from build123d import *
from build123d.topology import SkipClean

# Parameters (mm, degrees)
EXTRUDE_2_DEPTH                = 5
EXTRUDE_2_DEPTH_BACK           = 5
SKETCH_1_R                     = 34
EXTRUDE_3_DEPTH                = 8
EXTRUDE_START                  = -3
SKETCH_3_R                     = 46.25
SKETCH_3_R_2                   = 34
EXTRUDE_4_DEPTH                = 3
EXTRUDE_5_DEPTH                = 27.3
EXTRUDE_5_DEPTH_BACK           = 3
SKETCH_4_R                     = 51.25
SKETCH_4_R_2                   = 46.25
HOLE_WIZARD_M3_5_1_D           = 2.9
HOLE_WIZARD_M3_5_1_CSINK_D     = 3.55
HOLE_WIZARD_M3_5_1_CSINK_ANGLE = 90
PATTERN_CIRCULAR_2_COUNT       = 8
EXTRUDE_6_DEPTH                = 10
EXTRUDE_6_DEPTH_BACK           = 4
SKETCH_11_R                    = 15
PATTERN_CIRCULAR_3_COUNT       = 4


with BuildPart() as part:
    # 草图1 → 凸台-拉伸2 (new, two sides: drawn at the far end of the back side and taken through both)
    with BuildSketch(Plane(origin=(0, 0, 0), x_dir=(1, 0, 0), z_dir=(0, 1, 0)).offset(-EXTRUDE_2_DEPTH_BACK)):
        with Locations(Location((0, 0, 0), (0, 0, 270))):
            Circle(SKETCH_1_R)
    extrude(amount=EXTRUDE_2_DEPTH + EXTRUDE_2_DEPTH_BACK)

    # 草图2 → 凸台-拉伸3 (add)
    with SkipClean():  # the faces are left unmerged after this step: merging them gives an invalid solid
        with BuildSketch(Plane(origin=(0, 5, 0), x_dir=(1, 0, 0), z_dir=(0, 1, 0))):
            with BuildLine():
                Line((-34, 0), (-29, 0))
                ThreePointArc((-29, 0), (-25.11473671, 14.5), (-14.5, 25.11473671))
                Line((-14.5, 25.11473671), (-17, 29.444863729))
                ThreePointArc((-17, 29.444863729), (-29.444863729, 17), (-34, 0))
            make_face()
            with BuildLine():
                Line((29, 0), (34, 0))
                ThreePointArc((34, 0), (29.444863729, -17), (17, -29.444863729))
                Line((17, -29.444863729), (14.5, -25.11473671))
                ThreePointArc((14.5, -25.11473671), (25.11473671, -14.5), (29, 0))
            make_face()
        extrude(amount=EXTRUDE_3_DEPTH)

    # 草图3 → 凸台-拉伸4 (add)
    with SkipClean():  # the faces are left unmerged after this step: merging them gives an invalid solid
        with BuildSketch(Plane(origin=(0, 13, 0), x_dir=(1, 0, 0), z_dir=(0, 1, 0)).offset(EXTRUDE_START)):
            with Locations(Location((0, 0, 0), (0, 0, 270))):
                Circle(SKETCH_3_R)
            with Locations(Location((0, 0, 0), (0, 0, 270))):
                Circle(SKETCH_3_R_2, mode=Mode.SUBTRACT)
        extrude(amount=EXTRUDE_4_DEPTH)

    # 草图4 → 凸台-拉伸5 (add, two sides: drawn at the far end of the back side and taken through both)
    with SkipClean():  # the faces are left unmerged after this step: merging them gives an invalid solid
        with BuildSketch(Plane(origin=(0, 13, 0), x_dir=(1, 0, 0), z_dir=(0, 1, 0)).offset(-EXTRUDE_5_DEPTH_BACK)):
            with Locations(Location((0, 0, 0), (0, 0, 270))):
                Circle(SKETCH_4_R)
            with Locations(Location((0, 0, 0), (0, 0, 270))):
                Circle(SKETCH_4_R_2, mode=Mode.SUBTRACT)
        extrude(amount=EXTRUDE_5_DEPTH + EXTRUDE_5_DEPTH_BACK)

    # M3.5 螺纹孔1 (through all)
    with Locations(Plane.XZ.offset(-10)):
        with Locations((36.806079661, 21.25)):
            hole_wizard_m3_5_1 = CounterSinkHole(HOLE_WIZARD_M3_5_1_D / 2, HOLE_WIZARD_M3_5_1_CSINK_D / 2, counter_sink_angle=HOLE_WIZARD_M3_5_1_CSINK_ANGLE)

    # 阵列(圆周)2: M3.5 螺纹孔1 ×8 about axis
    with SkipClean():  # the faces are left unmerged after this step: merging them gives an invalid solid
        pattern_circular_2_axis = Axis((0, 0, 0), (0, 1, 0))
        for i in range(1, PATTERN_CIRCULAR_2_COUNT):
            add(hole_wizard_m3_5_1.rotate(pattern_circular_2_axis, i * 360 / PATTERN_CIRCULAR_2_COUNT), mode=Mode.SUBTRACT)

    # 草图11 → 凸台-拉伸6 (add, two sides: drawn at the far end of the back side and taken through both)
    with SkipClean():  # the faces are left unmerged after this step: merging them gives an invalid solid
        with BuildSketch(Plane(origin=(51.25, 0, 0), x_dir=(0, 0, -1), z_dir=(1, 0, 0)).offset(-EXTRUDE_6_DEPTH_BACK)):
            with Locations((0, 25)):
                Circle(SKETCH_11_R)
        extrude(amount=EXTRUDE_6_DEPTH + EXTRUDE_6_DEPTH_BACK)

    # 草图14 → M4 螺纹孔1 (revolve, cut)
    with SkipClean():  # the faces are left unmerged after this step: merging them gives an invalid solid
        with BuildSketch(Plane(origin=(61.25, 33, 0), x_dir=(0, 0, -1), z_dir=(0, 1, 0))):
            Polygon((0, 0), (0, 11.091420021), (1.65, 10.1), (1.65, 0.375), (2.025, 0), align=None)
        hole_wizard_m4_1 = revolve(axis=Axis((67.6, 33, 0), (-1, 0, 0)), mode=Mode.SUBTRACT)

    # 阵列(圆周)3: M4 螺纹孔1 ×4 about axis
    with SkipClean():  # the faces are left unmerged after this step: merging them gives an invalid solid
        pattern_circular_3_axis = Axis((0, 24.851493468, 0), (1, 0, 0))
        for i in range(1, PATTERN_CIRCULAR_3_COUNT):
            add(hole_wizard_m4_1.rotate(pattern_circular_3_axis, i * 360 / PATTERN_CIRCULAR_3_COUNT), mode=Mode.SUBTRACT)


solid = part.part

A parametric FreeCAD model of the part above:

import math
import FreeCAD as App
import Part
import Sketcher
Q = App.Units.Quantity


def add_polygon(sketch, points):
    """Adds a closed chain of lines whose ends are joined by coincident constraints."""
    first, n = sketch.GeometryCount, len(points)
    for a, b in zip(points, points[1:] + points[:1]):
        sketch.addGeometry(Part.LineSegment(App.Vector(*a, 0), App.Vector(*b, 0)), False)
    for i in range(n):
        sketch.addConstraint(Sketcher.Constraint("Coincident", first + i, 2, first + (i + 1) % n, 1))

doc = App.newDocument("Part")
body = doc.addObject("PartDesign::Body", "Body")

# Sketch on XZ plane
sketch1 = body.newObject("Sketcher::SketchObject", "Sketch")
sketch1.AttachmentSupport = (doc.getObject("XZ_Plane"), [""])
sketch1.MapMode = "FlatFace"
sketch1.addGeometry(Part.Circle(App.Vector(0, 0, 0), App.Vector(0, 0, 1), 34), False)
sketch1.addConstraint([
    Sketcher.Constraint("Coincident", 0, 3, -1, 1),
    Sketcher.Constraint("Diameter", 0, Q("68 mm")),
])
pad1 = body.newObject("PartDesign::Pad", "Pad")
pad1.Profile = sketch1
pad1.Type = "TwoLengths"
pad1.Length = 5
pad1.Length2 = 5
pad1.Reversed = True

# Sketch on XZ plane
sketch2 = body.newObject("Sketcher::SketchObject", "Sketch001")
sketch2.AttachmentSupport = (doc.getObject("XZ_Plane"), [""])
sketch2.MapMode = "FlatFace"
sketch2.AttachmentOffset = App.Placement(App.Vector(0, 0, -5), App.Rotation())
sketch2.addGeometry([
    Part.LineSegment(App.Vector(-34, 0, 0), App.Vector(-29, 0, 0)),  # 0
    Part.ArcOfCircle(Part.Circle(App.Vector(0, 0, 0), App.Vector(0, 0, 1), 29), math.radians(180), math.radians(240)),  # 1
    Part.LineSegment(App.Vector(-14, -25, 0), App.Vector(-17, -29, 0)),  # 2
    Part.ArcOfCircle(Part.Circle(App.Vector(0, 0, 0), App.Vector(0, 0, 1), 34), math.radians(180), math.radians(240)),  # 3
    Part.LineSegment(App.Vector(34, 0, 0), App.Vector(29, 0, 0)),  # 4
    Part.ArcOfCircle(Part.Circle(App.Vector(0, 0, 0), App.Vector(0, 0, 1), 29), math.radians(0), math.radians(60)),  # 5
    Part.LineSegment(App.Vector(14, 25, 0), App.Vector(17, 29, 0)),  # 6
    Part.ArcOfCircle(Part.Circle(App.Vector(0, 0, 0), App.Vector(0, 0, 1), 34), math.radians(0), math.radians(60)),  # 7
], False)
sketch2.addConstraint([
    Sketcher.Constraint("Coincident", 0, 2, 1, 1),
    Sketcher.Constraint("Coincident", 1, 2, 2, 1),
    Sketcher.Constraint("Coincident", 2, 2, 3, 2),
    Sketcher.Constraint("Coincident", 3, 1, 0, 1),
    Sketcher.Constraint("Coincident", 4, 2, 5, 1),
    Sketcher.Constraint("Coincident", 5, 2, 6, 1),
    Sketcher.Constraint("Coincident", 6, 2, 7, 2),
    Sketcher.Constraint("Coincident", 7, 1, 4, 1),
    Sketcher.Constraint("Horizontal", 0),
    Sketcher.Constraint("Horizontal", 4),
    Sketcher.Constraint("Coincident", 1, 3, -1, 1),
    Sketcher.Constraint("Coincident", 3, 3, -1, 1),
    Sketcher.Constraint("Coincident", 5, 3, -1, 1),
    Sketcher.Constraint("Coincident", 7, 3, -1, 1),
    Sketcher.Constraint("Equal", 1, 5),
    Sketcher.Constraint("Equal", 3, 7),
    Sketcher.Constraint("PointOnObject", 0, 2, -1),
    Sketcher.Constraint("PointOnObject", 4, 2, -1),
    Sketcher.Constraint("Parallel", 2, 6),
    Sketcher.Constraint("Radius", 1, Q("29 mm")),
    Sketcher.Constraint("Radius", 3, Q("34 mm")),
    Sketcher.Constraint("Angle", 2, Q("-120 deg")),
    Sketcher.Constraint("DistanceX", 2, 2, -1, 1, Q("17 mm")),
    Sketcher.Constraint("DistanceX", -1, 1, 6, 2, Q("17 mm")),
])
pad2 = body.newObject("PartDesign::Pad", "Pad001")
pad2.Profile = sketch2
pad2.Length = 8
pad2.Reversed = True

# Sketch on XZ plane
sketch3 = body.newObject("Sketcher::SketchObject", "Sketch002")
sketch3.AttachmentSupport = (doc.getObject("XZ_Plane"), [""])
sketch3.MapMode = "FlatFace"
sketch3.AttachmentOffset = App.Placement(App.Vector(0, 0, -10), App.Rotation())
sketch3.addGeometry([
    Part.Circle(App.Vector(0, 0, 0), App.Vector(0, 0, 1), 46),
    Part.Circle(App.Vector(0, 0, 0), App.Vector(0, 0, 1), 34),
], False)
sketch3.addConstraint([
    Sketcher.Constraint("Coincident", 0, 3, -1, 1),
    Sketcher.Constraint("Coincident", 1, 3, -1, 1),
    Sketcher.Constraint("Diameter", 1, Q("68 mm")),
    Sketcher.Constraint("Diameter", 0, Q("92.5 mm")),
])
pad3 = body.newObject("PartDesign::Pad", "Pad002")
pad3.Profile = sketch3
pad3.Length = 3
pad3.Reversed = True

# Sketch on XZ plane
sketch4 = body.newObject("Sketcher::SketchObject", "Sketch003")
sketch4.AttachmentSupport = (doc.getObject("XZ_Plane"), [""])
sketch4.MapMode = "FlatFace"
sketch4.AttachmentOffset = App.Placement(App.Vector(0, 0, -13), App.Rotation())
sketch4.addGeometry([
    Part.Circle(App.Vector(0, 0, 0), App.Vector(0, 0, 1), 51),
    Part.Circle(App.Vector(0, 0, 0), App.Vector(0, 0, 1), 46),
], False)
sketch4.addConstraint([
    Sketcher.Constraint("Coincident", 0, 3, -1, 1),
    Sketcher.Constraint("Coincident", 1, 3, -1, 1),
    Sketcher.Constraint("Diameter", 0, Q("102.5 mm")),
    Sketcher.Constraint("Diameter", 1, Q("92.5 mm")),
])
pad4 = body.newObject("PartDesign::Pad", "Pad003")
pad4.Profile = sketch4
pad4.Type = "TwoLengths"
pad4.Length = 27.3
pad4.Length2 = 3
pad4.Reversed = True

# Sketch on XZ plane
sketch5 = body.newObject("Sketcher::SketchObject", "Sketch004")
sketch5.AttachmentSupport = (doc.getObject("XZ_Plane"), [""])
sketch5.MapMode = "FlatFace"
sketch5.AttachmentOffset = App.Placement(App.Vector(0, 0, -10), App.Rotation())
sketch5.addGeometry(Part.Circle(App.Vector(36.8, 21.2, 0), App.Vector(0, 0, 1), 1.4), False)
sketch5.addConstraint([
    Sketcher.Constraint("Diameter", 0, Q("2.9 mm")),
    Sketcher.Constraint("DistanceY", -1, 1, 0, 3, Q("21.25 mm")),
    Sketcher.Constraint("DistanceX", -1, 1, 0, 3, Q("36.80608 mm")),
])
doc.recompute()
hole = body.newObject("PartDesign::Hole", "Hole")
hole.Profile = sketch5
hole.ThreadType = "None"
hole.Diameter = 2.9
hole.DepthType = "ThroughAll"
hole.HoleCutType = "Countersink"
hole.HoleCutDiameter = 3.55
hole.HoleCutCountersinkAngle = 90
doc.recompute()

polarpattern = body.newObject("PartDesign::PolarPattern", "PolarPattern")
polarpattern.Originals = [hole]
polarpattern.Axis = (doc.getObject("Y_Axis"), [""])
polarpattern.Angle = 360
polarpattern.Occurrences = 8
body.Tip = polarpattern

# Sketch on YZ plane
sketch6 = body.newObject("Sketcher::SketchObject", "Sketch005")
sketch6.AttachmentSupport = (doc.getObject("YZ_Plane"), [""])
sketch6.MapMode = "FlatFace"
sketch6.AttachmentOffset = App.Placement(App.Vector(0, 0, 51.25), App.Rotation())
sketch6.addGeometry(Part.Circle(App.Vector(25, 0, 0), App.Vector(0, 0, 1), 15), False)
sketch6.addConstraint([
    Sketcher.Constraint("PointOnObject", 0, 3, -1),
    Sketcher.Constraint("Diameter", 0, Q("30 mm")),
    Sketcher.Constraint("DistanceX", -1, 1, 0, 3, Q("25 mm")),
])
pad5 = body.newObject("PartDesign::Pad", "Pad004")
pad5.Profile = sketch6
pad5.Type = "TwoLengths"
pad5.Length = 10
pad5.Length2 = 4

# Sketch on XZ plane
sketch7 = body.newObject("Sketcher::SketchObject", "Sketch006")
sketch7.AttachmentSupport = (doc.getObject("XZ_Plane"), [""])
sketch7.MapMode = "FlatFace"
sketch7.AttachmentOffset = App.Placement(App.Vector(0, 0, -33), App.Rotation())
add_polygon(sketch7, [(50.2, 0), (61.2, 0), (61.2, -2), (60.9, -1.6), (51.1, -1.6)])  # lines 0-4
sketch7.addConstraint([
    Sketcher.Constraint("Horizontal", 0),
    Sketcher.Constraint("Vertical", 1),
    Sketcher.Constraint("Horizontal", 3),
    Sketcher.Constraint("PointOnObject", 0, 2, -1),
    Sketcher.Constraint("Angle", 2, Q("135 deg")),
    Sketcher.Constraint("Angle", 4, Q("121 deg")),
    Sketcher.Constraint("DistanceX", 3, 2, 1, 2, Q("10.1 mm")),
    Sketcher.Constraint("DistanceX", 3, 2, 3, 1, Q("9.725 mm")),
    Sketcher.Constraint("DistanceY", 1, 2, 1, 1, Q("2.025 mm")),
    Sketcher.Constraint("DistanceX", -1, 1, 0, 2, Q("61.25 mm")),
])
groove = body.newObject("PartDesign::Groove", "Groove")
groove.Profile = sketch7
groove.ReferenceAxis = (sketch7, ["H_Axis"])
groove.Angle = 360
doc.recompute()

datumline = body.newObject("PartDesign::Line", "DatumLine")
datumline.Placement = App.Placement(App.Vector(0, 24.851493, 0), App.Rotation(App.Vector(0, 0, 1), App.Vector(1, 0, 0)))
polarpattern2 = body.newObject("PartDesign::PolarPattern", "PolarPattern001")
polarpattern2.Originals = [groove]
polarpattern2.Axis = (datumline, [""])
polarpattern2.Angle = 360
polarpattern2.Occurrences = 4
body.Tip = polarpattern2

doc.recompute()
